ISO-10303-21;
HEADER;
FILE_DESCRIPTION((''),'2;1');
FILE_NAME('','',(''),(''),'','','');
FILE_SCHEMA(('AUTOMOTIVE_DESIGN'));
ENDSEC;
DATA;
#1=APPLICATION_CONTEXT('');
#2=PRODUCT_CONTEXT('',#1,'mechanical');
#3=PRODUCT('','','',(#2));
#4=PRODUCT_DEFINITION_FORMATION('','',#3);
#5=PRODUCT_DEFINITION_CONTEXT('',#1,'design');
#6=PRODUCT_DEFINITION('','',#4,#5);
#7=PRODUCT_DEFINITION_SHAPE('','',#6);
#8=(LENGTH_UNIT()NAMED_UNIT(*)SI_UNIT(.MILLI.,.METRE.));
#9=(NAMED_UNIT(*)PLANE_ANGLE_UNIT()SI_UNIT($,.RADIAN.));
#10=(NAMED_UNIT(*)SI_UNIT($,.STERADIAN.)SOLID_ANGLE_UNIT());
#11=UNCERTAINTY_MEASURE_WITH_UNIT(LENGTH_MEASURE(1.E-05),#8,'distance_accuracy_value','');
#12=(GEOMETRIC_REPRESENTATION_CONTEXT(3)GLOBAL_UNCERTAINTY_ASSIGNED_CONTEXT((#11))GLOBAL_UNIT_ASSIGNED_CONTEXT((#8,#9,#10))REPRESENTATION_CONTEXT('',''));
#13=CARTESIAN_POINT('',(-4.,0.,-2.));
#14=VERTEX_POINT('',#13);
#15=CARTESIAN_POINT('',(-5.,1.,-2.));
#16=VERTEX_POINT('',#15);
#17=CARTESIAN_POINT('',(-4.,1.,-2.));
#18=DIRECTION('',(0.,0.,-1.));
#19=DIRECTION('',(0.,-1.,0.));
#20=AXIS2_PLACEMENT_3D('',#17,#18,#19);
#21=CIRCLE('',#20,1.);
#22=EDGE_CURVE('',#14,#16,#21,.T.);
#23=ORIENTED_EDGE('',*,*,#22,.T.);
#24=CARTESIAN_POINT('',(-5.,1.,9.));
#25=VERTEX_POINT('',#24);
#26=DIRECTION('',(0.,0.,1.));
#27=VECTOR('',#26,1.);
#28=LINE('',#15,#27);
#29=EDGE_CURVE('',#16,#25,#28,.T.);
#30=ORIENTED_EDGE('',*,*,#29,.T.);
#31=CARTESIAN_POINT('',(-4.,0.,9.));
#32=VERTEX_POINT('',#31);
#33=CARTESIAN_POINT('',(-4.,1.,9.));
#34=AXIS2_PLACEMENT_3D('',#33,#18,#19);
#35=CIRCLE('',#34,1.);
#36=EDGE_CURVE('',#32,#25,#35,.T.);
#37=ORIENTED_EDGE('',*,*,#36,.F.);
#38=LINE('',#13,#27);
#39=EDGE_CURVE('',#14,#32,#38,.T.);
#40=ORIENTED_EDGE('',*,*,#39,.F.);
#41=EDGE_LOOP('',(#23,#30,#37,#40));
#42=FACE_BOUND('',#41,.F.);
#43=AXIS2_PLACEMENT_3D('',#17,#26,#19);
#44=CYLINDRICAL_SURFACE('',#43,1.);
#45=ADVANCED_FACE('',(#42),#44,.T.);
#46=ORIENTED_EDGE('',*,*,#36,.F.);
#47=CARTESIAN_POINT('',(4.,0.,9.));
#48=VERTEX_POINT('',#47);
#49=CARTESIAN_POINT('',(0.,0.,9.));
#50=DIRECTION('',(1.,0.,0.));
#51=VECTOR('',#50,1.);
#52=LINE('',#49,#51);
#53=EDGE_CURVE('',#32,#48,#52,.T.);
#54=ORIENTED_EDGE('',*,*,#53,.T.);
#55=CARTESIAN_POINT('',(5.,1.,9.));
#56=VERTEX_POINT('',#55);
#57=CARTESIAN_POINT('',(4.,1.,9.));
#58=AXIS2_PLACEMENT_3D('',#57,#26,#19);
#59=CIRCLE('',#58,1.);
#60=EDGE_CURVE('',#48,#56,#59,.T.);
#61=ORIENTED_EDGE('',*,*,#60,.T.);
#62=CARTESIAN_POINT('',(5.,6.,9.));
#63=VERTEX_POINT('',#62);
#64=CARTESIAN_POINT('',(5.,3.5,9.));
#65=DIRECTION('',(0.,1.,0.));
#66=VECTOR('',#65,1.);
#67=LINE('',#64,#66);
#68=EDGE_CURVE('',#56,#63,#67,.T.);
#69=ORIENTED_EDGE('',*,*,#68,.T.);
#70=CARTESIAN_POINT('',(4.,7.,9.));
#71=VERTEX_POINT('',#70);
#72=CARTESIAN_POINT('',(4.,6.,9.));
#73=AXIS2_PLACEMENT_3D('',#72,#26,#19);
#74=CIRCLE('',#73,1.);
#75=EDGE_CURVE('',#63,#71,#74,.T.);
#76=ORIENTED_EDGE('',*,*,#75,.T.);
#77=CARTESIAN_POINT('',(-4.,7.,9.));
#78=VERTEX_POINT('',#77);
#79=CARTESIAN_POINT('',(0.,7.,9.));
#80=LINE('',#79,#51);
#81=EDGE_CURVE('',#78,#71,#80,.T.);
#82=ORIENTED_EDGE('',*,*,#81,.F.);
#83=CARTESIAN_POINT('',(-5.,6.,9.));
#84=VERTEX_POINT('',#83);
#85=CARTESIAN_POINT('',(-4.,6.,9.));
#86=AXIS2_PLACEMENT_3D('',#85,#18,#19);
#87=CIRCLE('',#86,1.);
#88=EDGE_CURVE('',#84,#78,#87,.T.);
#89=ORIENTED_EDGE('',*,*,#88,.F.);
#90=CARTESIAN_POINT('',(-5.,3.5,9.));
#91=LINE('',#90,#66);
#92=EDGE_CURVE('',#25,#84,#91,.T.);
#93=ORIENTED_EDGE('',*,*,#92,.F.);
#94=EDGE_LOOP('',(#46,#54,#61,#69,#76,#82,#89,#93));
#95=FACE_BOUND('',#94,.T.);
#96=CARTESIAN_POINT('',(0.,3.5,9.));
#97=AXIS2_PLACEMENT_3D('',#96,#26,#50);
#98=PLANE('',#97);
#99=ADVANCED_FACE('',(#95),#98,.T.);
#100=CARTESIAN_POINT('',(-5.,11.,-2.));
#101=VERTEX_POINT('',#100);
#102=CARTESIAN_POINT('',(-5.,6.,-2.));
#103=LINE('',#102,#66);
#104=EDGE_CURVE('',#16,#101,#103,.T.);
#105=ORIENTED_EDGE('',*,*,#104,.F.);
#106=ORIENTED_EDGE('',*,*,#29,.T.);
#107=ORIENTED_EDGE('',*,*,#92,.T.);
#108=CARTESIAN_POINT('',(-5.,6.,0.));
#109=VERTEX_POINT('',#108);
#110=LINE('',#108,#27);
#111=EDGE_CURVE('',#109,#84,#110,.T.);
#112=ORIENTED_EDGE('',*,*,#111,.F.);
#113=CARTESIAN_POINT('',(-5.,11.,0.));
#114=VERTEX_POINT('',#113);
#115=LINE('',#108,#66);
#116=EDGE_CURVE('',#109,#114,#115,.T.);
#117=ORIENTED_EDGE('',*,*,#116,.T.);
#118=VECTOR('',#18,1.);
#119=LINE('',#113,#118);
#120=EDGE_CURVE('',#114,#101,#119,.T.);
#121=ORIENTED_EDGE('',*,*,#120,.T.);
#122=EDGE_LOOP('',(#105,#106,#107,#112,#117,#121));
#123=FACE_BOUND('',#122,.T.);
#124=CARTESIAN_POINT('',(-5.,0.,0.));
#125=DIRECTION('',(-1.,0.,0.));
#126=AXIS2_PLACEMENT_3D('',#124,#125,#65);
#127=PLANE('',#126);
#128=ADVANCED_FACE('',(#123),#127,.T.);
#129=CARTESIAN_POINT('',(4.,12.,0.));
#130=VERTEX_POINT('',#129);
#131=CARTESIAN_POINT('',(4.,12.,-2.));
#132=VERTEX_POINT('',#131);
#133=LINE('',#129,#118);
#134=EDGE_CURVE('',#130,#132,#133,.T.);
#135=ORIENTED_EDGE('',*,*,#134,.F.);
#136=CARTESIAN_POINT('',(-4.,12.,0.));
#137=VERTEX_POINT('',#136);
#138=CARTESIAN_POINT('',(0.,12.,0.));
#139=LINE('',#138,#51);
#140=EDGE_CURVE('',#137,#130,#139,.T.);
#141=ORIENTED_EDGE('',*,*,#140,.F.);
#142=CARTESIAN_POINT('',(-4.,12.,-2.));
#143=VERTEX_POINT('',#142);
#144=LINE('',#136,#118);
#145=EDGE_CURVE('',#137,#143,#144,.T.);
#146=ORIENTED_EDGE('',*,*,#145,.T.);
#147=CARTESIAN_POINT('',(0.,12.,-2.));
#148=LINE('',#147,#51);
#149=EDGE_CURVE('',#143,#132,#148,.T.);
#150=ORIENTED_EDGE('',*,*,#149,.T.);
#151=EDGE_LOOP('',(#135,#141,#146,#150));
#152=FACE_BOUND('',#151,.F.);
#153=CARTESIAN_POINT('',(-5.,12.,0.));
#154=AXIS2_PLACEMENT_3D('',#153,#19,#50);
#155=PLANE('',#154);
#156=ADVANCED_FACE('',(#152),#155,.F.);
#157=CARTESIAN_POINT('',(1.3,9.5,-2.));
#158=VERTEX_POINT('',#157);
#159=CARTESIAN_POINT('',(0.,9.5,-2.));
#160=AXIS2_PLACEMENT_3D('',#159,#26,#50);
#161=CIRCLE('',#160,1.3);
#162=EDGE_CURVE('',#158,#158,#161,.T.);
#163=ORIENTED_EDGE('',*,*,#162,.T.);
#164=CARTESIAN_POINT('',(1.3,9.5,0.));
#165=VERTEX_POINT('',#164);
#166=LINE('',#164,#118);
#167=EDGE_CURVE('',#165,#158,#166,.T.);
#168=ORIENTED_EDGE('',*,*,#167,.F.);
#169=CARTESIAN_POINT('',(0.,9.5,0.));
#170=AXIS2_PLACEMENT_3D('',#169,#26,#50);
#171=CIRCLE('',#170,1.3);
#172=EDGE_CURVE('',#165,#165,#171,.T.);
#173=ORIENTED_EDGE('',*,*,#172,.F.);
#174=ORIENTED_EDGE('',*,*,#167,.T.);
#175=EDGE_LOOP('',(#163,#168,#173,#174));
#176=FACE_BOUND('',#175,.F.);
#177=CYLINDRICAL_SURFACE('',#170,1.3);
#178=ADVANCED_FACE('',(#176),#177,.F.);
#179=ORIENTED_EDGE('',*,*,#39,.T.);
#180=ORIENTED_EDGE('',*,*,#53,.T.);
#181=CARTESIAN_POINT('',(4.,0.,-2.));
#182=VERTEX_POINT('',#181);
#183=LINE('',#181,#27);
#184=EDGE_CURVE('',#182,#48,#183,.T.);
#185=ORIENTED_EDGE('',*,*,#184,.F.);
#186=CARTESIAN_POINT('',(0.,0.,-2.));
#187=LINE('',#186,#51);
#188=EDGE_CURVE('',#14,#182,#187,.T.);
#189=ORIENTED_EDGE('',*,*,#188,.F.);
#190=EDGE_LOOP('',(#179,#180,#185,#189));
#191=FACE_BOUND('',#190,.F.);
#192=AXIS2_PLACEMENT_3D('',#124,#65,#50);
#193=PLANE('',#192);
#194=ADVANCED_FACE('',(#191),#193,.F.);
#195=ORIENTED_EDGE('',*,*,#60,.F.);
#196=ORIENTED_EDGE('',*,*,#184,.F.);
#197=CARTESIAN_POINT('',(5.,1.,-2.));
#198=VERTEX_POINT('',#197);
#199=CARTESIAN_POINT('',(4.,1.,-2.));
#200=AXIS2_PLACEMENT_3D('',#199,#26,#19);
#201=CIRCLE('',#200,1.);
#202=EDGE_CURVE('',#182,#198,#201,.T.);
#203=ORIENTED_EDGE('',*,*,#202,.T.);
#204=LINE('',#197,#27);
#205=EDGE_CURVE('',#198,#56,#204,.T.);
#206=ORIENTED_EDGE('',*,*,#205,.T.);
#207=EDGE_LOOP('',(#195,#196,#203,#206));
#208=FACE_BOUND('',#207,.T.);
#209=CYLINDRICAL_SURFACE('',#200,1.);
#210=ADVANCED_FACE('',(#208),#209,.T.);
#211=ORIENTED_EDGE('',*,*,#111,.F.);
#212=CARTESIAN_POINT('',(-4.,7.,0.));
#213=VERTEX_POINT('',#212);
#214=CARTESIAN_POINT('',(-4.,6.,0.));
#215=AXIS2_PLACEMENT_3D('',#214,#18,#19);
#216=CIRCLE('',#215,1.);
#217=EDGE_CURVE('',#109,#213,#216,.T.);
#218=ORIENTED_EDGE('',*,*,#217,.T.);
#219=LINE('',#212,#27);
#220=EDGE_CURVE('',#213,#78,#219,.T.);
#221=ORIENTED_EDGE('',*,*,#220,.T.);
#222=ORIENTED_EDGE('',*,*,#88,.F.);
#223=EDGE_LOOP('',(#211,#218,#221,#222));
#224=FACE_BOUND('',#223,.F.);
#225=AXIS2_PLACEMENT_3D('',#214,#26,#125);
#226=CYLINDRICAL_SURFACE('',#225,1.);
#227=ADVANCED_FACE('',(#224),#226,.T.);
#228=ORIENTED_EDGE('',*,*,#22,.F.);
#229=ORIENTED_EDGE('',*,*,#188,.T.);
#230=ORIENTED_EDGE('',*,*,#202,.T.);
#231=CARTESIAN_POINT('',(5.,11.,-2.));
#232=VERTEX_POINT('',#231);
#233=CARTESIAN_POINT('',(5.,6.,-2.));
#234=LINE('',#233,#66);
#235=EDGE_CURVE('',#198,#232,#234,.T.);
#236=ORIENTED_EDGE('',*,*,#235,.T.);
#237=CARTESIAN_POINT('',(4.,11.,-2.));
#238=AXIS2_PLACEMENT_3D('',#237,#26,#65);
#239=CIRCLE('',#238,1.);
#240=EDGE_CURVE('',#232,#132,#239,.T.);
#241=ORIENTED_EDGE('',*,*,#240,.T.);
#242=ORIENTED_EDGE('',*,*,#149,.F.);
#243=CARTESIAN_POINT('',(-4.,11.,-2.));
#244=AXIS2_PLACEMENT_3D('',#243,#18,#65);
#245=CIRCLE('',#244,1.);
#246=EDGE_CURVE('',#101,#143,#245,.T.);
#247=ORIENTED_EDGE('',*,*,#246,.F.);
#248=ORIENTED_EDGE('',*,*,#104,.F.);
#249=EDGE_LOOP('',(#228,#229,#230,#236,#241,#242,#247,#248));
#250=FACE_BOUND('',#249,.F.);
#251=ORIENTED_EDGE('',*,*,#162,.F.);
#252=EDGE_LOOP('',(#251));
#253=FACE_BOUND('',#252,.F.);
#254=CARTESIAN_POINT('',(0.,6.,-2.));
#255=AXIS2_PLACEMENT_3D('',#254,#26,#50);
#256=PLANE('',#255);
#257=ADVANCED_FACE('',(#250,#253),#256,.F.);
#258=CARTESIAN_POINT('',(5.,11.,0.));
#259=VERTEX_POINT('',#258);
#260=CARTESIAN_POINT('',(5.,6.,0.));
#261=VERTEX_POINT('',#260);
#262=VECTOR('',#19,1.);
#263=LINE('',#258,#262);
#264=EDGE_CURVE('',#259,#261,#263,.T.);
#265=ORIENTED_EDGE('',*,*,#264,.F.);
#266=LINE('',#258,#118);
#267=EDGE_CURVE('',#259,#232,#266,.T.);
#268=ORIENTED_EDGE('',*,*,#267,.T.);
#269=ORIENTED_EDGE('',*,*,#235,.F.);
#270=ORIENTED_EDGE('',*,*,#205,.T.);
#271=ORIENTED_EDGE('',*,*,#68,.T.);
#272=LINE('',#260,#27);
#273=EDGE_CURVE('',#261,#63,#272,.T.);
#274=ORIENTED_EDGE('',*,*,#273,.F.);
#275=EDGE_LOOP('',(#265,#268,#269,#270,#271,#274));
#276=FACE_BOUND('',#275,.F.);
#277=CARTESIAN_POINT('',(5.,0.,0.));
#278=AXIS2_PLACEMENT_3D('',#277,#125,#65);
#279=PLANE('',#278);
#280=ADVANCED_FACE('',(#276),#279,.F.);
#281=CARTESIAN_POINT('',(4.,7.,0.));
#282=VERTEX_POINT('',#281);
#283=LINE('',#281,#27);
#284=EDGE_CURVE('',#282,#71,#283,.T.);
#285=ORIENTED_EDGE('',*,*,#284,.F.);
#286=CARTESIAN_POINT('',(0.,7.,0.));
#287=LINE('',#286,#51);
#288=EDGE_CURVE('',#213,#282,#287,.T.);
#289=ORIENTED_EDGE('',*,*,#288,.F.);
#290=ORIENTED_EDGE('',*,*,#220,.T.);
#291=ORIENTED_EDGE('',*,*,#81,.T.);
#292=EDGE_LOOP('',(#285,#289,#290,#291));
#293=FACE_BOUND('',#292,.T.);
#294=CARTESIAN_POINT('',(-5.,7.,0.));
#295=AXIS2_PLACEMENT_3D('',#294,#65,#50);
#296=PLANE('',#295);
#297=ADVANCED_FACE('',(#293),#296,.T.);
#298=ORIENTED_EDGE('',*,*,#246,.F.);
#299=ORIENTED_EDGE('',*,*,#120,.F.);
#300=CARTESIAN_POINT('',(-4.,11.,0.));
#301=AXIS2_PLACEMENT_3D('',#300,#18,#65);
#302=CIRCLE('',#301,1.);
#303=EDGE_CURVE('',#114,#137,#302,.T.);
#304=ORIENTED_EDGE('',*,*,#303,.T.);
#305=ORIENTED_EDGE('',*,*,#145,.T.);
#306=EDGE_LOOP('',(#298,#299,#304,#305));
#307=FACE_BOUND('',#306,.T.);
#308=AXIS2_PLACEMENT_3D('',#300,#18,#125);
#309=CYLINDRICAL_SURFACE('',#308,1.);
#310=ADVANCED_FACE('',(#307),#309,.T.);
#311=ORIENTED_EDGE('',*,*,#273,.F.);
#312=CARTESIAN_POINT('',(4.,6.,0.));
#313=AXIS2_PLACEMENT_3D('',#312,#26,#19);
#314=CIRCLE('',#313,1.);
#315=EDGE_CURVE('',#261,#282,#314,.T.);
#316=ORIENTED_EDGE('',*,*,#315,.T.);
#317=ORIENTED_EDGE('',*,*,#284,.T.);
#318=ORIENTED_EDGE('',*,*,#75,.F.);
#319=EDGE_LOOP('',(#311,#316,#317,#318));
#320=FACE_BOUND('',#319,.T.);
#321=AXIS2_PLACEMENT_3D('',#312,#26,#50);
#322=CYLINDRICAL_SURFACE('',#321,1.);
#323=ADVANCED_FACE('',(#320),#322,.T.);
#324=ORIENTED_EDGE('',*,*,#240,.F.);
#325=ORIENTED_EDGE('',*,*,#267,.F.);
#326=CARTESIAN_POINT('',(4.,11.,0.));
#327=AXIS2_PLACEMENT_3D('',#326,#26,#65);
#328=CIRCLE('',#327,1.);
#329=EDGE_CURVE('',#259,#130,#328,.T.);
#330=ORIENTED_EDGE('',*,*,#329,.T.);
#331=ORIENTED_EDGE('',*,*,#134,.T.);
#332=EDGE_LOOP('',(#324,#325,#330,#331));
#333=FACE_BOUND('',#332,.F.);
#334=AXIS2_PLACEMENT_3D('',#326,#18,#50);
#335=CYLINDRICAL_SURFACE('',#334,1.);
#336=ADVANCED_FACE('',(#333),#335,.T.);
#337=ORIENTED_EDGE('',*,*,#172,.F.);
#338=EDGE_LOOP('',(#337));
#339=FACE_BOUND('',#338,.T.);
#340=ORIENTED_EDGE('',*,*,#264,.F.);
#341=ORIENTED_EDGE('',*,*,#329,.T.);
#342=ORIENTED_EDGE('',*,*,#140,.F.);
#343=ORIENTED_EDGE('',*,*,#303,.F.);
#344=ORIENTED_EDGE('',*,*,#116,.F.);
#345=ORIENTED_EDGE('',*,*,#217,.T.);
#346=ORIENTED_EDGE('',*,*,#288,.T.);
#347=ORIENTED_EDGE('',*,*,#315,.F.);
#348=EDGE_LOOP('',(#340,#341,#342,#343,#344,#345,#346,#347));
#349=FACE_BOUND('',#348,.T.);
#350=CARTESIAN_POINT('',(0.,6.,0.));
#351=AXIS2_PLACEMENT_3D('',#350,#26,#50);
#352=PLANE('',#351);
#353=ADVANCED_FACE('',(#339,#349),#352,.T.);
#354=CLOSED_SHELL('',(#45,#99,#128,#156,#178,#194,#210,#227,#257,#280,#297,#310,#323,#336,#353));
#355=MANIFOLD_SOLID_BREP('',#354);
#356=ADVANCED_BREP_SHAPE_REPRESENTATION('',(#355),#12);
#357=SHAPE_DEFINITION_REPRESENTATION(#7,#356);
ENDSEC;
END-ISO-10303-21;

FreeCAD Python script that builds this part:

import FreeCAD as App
import Part
import Sketcher
from FreeCAD import Vector


def edges_at(feature, points):
    """Names of the edges that pass closest to the given points."""
    edges = feature.Shape.Edges
    near = lambda p: min(range(len(edges)), key=lambda i: edges[i].distToShape(Part.Vertex(*p))[0])
    return sorted({f"Edge{near(p) + 1}" for p in points})

doc = App.newDocument("Part")
params = doc.addObject("Spreadsheet::Sheet", "Params")
for row, (alias, value) in enumerate([
    ("sketch1_width", "10 mm"),
    ("sketch1_height", "7 mm"),
    ("pad1_length", "9 mm"),
    ("sketch2_diameter", "2.6 mm"),
    ("sketch2_width", "10 mm"),
    ("sketch2_height", "12 mm"),
    ("pad2_length", "2 mm"),
    ("fillet_radius", "1 mm"),
    ("fillet2_radius", "1 mm"),
], start=1):
    params.set(f"A{row}", alias)
    params.set(f"B{row}", "=" + value)
    params.setAlias(f"B{row}", alias)

body = doc.addObject("PartDesign::Body", "Body")

sketch1 = body.newObject("Sketcher::SketchObject", "Sketch")
sketch1.AttachmentSupport = (doc.getObject("XY_Plane"), [""])
sketch1.MapMode = "FlatFace"
sketch1.addGeometry([
    Part.LineSegment(Vector(-5, 7, 0), Vector(-5, 0, 0)),
    Part.LineSegment(Vector(-5, 0, 0), Vector(5, 0, 0)),
    Part.LineSegment(Vector(5, 0, 0), Vector(5, 7, 0)),
    Part.LineSegment(Vector(5, 7, 0), Vector(-5, 7, 0)),
], False)
sketch1.addConstraint([
    Sketcher.Constraint("Coincident", 0, 2, 1, 1),
    Sketcher.Constraint("Coincident", 1, 2, 2, 1),
    Sketcher.Constraint("Coincident", 2, 2, 3, 1),
    Sketcher.Constraint("Coincident", 3, 2, 0, 1),
    Sketcher.Constraint("Vertical", 0),
    Sketcher.Constraint("Horizontal", 1),
    Sketcher.Constraint("Vertical", 2),
    Sketcher.Constraint("Horizontal", 3),
    Sketcher.Constraint("Symmetric", 0, 2, 1, 2, -1, 1),
    Sketcher.Constraint("DistanceX", 1, 1, 1, 2, 10.0),
    Sketcher.Constraint("DistanceY", 0, 2, 0, 1, 7.0),
])
sketch1.setExpression("Constraints[9]", "Params.sketch1_width")
sketch1.setExpression("Constraints[10]", "Params.sketch1_height")
pad1 = body.newObject("PartDesign::Pad", "Pad")
pad1.Profile = sketch1
pad1.setExpression("Length", "Params.pad1_length")
body2 = doc.addObject("PartDesign::Body", "Body001")

sketch2 = body2.newObject("Sketcher::SketchObject", "Sketch001")
sketch2.AttachmentSupport = (doc.getObject("XY_Plane001"), [""])
sketch2.MapMode = "FlatFace"
sketch2.addGeometry([
    Part.LineSegment(Vector(-5, 12, 0), Vector(-5, 0, 0)),
    Part.LineSegment(Vector(-5, 0, 0), Vector(5, 0, 0)),
    Part.LineSegment(Vector(5, 0, 0), Vector(5, 12, 0)),
    Part.LineSegment(Vector(5, 12, 0), Vector(-5, 12, 0)),
    Part.Circle(Vector(0, 9.5, 0), Vector(0, 0, 1), 1.3),
], False)
sketch2.addConstraint([
    Sketcher.Constraint("Coincident", 0, 2, 1, 1),
    Sketcher.Constraint("Coincident", 1, 2, 2, 1),
    Sketcher.Constraint("Coincident", 2, 2, 3, 1),
    Sketcher.Constraint("Coincident", 3, 2, 0, 1),
    Sketcher.Constraint("Vertical", 0),
    Sketcher.Constraint("Horizontal", 1),
    Sketcher.Constraint("Vertical", 2),
    Sketcher.Constraint("Horizontal", 3),
    Sketcher.Constraint("Symmetric", 0, 2, 1, 2, -1, 1),
    Sketcher.Constraint("PointOnObject", 4, 3, -2),
    Sketcher.Constraint("Diameter", 4, 2.6),
    Sketcher.Constraint("DistanceX", 1, 1, 1, 2, 10.0),
    Sketcher.Constraint("DistanceY", 0, 2, 0, 1, 12.0),
    Sketcher.Constraint("DistanceY", -1, 1, 4, 3, 9.5),
])
sketch2.setExpression("Constraints[10]", "Params.sketch2_diameter")
sketch2.setExpression("Constraints[11]", "Params.sketch2_width")
sketch2.setExpression("Constraints[12]", "Params.sketch2_height")
pad2 = body2.newObject("PartDesign::Pad", "Pad001")
pad2.Profile = sketch2
pad2.setExpression("Length", "Params.pad2_length")
pad2.Reversed = True
doc.recompute()

boolean = body2.newObject("PartDesign::Boolean", "Boolean")
boolean.Type = "Fuse"
boolean.addObjects([body])
doc.recompute()

fillet = body2.newObject("PartDesign::Fillet", "Fillet")
fillet.Base = (boolean, edges_at(boolean, [(5, 0, 3.5), (5, 0, 3.5)]))
fillet.setExpression("Radius", "Params.fillet_radius")
doc.recompute()

fillet2 = body2.newObject("PartDesign::Fillet", "Fillet001")
fillet2.Base = (fillet, edges_at(fillet, [
    (-5, 0, 3.5),
    (-5, 0, 3.5),
    (-5, 7, 4.5),
    (-5, 12, -1),
    (5, 7, 4.5),
    (5, 12, -1),
]))
fillet2.setExpression("Radius", "Params.fillet2_radius")

doc.recompute()
